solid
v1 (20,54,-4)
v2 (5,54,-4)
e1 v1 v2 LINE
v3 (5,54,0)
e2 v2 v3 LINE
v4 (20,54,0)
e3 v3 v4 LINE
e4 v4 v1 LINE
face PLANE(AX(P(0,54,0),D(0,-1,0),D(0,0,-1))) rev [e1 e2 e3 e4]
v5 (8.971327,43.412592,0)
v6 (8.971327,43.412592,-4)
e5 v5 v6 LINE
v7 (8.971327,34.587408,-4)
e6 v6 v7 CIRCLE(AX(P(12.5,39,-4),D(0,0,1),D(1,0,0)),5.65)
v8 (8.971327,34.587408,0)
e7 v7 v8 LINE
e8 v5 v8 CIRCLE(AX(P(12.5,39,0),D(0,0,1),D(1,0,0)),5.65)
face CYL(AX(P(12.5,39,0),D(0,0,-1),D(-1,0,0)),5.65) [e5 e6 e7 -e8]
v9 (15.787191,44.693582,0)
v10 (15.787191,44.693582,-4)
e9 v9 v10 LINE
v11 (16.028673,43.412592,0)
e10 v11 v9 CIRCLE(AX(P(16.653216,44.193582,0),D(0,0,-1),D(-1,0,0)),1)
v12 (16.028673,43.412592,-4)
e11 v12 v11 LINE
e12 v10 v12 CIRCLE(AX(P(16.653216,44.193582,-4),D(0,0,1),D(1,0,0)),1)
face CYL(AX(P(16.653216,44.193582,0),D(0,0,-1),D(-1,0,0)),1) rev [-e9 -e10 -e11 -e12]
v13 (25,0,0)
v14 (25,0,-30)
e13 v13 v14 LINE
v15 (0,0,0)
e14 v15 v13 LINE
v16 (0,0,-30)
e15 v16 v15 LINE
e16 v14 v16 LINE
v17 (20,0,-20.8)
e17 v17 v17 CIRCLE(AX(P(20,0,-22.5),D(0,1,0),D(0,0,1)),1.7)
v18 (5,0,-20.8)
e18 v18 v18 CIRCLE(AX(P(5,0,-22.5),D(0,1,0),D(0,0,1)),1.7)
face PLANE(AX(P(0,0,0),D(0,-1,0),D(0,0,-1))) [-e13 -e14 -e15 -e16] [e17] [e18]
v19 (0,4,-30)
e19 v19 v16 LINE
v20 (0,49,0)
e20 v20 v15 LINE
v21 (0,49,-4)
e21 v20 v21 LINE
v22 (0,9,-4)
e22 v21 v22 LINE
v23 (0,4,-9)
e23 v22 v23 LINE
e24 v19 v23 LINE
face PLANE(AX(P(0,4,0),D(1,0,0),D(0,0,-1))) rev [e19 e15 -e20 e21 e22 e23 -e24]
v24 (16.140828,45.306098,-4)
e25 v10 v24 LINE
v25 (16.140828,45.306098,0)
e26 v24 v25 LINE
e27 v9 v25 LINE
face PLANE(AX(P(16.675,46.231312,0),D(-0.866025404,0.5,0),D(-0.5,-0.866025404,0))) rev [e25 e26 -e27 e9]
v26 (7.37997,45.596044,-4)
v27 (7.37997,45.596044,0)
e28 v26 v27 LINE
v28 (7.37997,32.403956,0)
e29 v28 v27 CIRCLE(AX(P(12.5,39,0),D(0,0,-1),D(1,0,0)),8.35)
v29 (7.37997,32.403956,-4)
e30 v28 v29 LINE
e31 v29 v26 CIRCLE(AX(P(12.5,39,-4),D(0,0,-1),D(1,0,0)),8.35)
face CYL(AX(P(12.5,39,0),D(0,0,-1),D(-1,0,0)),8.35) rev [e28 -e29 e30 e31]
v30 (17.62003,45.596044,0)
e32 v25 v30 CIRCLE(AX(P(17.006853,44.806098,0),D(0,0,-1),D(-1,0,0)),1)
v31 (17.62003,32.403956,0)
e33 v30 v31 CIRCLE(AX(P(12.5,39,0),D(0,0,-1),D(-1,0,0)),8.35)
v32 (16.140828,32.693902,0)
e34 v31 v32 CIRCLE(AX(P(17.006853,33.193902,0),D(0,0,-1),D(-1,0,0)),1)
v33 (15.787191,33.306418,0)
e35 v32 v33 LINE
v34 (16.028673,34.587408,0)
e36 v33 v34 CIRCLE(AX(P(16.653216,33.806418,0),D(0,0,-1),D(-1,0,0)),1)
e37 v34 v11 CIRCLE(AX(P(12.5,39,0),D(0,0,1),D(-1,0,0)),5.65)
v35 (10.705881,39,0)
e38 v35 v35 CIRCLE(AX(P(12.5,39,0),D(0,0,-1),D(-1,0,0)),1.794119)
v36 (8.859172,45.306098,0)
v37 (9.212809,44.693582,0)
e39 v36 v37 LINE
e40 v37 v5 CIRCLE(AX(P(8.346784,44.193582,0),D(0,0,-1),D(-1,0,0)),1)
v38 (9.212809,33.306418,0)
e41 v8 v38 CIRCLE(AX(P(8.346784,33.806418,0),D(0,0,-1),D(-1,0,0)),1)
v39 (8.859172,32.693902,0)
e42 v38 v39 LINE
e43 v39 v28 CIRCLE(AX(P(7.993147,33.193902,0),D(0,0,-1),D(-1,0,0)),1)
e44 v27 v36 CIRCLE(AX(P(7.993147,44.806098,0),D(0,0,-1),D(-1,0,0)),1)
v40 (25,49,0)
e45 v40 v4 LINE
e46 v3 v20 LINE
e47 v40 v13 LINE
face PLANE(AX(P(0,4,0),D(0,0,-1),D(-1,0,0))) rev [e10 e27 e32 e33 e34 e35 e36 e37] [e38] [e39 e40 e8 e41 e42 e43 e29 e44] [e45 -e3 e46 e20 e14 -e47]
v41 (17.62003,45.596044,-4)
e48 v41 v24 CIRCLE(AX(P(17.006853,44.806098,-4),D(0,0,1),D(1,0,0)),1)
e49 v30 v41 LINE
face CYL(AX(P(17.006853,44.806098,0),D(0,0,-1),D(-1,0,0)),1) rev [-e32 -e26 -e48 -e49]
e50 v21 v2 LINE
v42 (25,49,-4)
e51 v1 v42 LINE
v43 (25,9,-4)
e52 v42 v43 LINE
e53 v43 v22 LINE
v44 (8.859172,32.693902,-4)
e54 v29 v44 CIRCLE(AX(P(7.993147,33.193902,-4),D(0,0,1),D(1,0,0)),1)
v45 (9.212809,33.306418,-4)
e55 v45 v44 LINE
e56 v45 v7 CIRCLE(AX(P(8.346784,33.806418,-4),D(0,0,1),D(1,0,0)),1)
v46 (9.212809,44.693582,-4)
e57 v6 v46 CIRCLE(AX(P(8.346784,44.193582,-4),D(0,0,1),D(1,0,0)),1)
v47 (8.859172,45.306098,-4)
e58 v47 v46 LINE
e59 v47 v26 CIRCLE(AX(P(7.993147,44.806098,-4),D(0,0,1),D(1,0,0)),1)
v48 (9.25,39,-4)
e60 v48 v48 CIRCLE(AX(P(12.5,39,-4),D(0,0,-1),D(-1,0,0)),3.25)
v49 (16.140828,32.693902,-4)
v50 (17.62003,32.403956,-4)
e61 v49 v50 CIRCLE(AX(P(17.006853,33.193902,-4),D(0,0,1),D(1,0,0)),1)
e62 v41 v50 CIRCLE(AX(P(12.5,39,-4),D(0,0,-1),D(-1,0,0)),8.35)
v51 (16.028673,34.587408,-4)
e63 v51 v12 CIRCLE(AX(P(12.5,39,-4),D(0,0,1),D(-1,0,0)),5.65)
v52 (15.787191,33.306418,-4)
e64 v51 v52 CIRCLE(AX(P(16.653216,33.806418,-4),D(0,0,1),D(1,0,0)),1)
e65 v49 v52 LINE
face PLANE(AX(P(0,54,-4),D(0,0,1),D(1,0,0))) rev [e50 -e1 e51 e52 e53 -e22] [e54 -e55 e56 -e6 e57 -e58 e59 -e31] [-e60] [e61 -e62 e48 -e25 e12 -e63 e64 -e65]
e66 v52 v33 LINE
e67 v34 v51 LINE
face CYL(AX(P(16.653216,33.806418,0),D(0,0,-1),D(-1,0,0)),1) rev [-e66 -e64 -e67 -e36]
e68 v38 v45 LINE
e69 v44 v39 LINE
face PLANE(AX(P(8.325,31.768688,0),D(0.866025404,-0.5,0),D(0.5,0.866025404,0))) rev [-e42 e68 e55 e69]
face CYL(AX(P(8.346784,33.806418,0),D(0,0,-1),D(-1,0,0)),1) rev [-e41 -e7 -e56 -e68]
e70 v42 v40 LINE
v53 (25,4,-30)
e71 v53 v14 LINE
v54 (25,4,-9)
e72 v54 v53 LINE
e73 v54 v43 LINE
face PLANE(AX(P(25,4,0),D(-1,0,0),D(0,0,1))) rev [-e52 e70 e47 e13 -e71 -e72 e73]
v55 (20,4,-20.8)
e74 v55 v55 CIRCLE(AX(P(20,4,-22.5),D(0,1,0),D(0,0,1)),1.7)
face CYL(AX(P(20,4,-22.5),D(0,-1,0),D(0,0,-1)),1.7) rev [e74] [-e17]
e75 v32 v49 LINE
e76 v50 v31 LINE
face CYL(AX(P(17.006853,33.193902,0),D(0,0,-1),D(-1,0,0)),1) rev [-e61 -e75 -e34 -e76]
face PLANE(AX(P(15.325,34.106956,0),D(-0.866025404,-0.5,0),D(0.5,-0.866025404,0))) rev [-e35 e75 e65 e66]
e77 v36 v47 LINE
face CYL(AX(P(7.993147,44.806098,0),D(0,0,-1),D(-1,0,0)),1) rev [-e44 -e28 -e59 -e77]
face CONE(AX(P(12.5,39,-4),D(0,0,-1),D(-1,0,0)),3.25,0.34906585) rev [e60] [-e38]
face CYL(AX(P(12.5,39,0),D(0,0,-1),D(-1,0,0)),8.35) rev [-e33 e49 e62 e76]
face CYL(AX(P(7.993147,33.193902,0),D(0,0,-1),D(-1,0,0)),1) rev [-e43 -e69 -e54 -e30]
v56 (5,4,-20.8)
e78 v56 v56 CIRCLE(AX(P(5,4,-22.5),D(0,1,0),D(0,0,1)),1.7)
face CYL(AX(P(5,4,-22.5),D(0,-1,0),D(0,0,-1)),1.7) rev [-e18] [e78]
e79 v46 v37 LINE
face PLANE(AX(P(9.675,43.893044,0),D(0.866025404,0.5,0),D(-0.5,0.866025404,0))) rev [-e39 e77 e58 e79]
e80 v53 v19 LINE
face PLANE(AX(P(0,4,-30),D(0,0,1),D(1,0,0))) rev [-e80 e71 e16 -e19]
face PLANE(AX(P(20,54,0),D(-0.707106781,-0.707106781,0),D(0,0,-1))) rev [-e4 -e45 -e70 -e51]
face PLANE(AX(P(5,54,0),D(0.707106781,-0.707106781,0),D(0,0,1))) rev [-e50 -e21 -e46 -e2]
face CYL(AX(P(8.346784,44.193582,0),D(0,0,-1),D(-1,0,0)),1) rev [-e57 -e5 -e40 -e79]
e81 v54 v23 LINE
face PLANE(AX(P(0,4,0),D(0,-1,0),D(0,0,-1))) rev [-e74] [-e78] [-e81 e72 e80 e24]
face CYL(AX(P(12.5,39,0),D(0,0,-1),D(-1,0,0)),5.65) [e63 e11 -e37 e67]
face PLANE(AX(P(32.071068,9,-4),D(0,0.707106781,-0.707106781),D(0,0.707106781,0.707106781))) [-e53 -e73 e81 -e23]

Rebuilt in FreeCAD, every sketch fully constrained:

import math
import FreeCAD as App
import Part
import Sketcher
from FreeCAD import Vector
Q = App.Units.Quantity


def edges_at(feature, points):
    """Names of the edges that pass closest to the given points."""
    edges = feature.Shape.Edges
    near = lambda p: min(range(len(edges)), key=lambda i: edges[i].distToShape(Part.Vertex(*p))[0])
    return sorted({f"Edge{near(p) + 1}" for p in points})


def faces_at(feature, points):
    """Names of the faces that lie closest to the given points."""
    faces = feature.Shape.Faces
    near = lambda p: min(range(len(faces)), key=lambda i: faces[i].distToShape(Part.Vertex(*p))[0])
    return sorted({f"Face{near(p) + 1}" for p in points})


def add_polygon(sketch, points):
    """Adds a closed chain of lines whose ends are joined by coincident constraints."""
    first, n = sketch.GeometryCount, len(points)
    for a, b in zip(points, points[1:] + points[:1]):
        sketch.addGeometry(Part.LineSegment(App.Vector(*a, 0), App.Vector(*b, 0)), False)
    for i in range(n):
        sketch.addConstraint(Sketcher.Constraint("Coincident", first + i, 2, first + (i + 1) % n, 1))

doc = App.newDocument("Part")
params = doc.addObject("Spreadsheet::Sheet", "Params")
for row, (alias, value) in enumerate([
    ("sketch1_diameter", "3.4 mm"),
    ("sketch1_width", "25 mm"),
    ("sketch1_height", "30 mm"),
    ("pad1_length", "4 mm"),
    ("sketch2_width", "25 mm"),
    ("sketch2_height", "4 mm"),
    ("pad2_length", "50 mm"),
    ("sketch3_diameter", "6.5 mm"),
    ("pad3_length", "4 mm"),
    ("draft_angle", "20 deg"),
    ("sketch4_radius", "8.35 mm"),
    ("sketch4_radius2", "5.65 mm"),
    ("sketch5_width", "5 mm"),
    ("pad4_length", "25 mm"),
    ("chamfer_size", "5 mm"),
    ("fillet_radius", "1 mm"),
], start=1):
    params.set(f"A{row}", alias)
    params.set(f"B{row}", "=" + value)
    params.setAlias(f"B{row}", alias)

body = doc.addObject("PartDesign::Body", "Body")

sketch1 = body.newObject("Sketcher::SketchObject", "Sketch")
sketch1.AttachmentSupport = (doc.getObject("XZ_Plane"), [""])
sketch1.MapMode = "FlatFace"
add_polygon(sketch1, [(0, -30), (0, 0), (25, 0), (25, -30)])
sketch1.addGeometry(Part.Circle(Vector(5, -22.5, 0), Vector(0, 0, 1), 1.7), False)
sketch1.addGeometry(Part.Circle(Vector(20, -22.5, 0), Vector(0, 0, 1), 1.7), False)
sketch1.addConstraint(Sketcher.Constraint("Vertical", 0))
sketch1.addConstraint(Sketcher.Constraint("Horizontal", 1))
sketch1.addConstraint(Sketcher.Constraint("Vertical", 2))
sketch1.addConstraint(Sketcher.Constraint("Horizontal", 3))
sketch1.addConstraint(Sketcher.Constraint("Coincident", 0, 2, -1, 1))
sketch1.addConstraint(Sketcher.Constraint("Equal", 4, 5))
sketch1.addConstraint(Sketcher.Constraint("Horizontal", 4, 3, 5, 3))
sketch1.addConstraint(Sketcher.Constraint("Diameter", 4, 3.4))
sketch1.addConstraint(Sketcher.Constraint("DistanceX", 1, 1, 1, 2, 25.0))
sketch1.addConstraint(Sketcher.Constraint("DistanceY", 0, 1, 0, 2, 30.0))
sketch1.addConstraint(Sketcher.Constraint("DistanceX", -1, 1, 4, 3, 5.0))
sketch1.addConstraint(Sketcher.Constraint("DistanceX", -1, 1, 5, 3, 20.0))
sketch1.addConstraint(Sketcher.Constraint("DistanceY", 4, 3, -1, 1, 22.5))
sketch1.setExpression("Constraints[11]", "Params.sketch1_diameter")
sketch1.setExpression("Constraints[12]", "Params.sketch1_width")
sketch1.setExpression("Constraints[13]", "Params.sketch1_height")
pad1 = body.newObject("PartDesign::Pad", "Pad")
pad1.Profile = sketch1
pad1.setExpression("Length", "Params.pad1_length")
pad1.Reversed = True

sketch2 = body.newObject("Sketcher::SketchObject", "Sketch001")
sketch2.AttachmentSupport = (doc.getObject("XZ_Plane"), [""])
sketch2.MapMode = "FlatFace"
sketch2.AttachmentOffset = App.Placement(Vector(0, 0, -4), App.Rotation())
add_polygon(sketch2, [(0, -4), (0, 0), (25, 0), (25, -4)])
sketch2.addConstraint(Sketcher.Constraint("Vertical", 0))
sketch2.addConstraint(Sketcher.Constraint("Horizontal", 1))
sketch2.addConstraint(Sketcher.Constraint("Vertical", 2))
sketch2.addConstraint(Sketcher.Constraint("Horizontal", 3))
sketch2.addConstraint(Sketcher.Constraint("Coincident", 0, 2, -1, 1))
sketch2.addConstraint(Sketcher.Constraint("DistanceX", 1, 1, 1, 2, 25.0))
sketch2.addConstraint(Sketcher.Constraint("DistanceY", 0, 1, 0, 2, 4.0))
sketch2.setExpression("Constraints[9]", "Params.sketch2_width")
sketch2.setExpression("Constraints[10]", "Params.sketch2_height")
pad2 = body.newObject("PartDesign::Pad", "Pad001")
pad2.Profile = sketch2
pad2.setExpression("Length", "Params.pad2_length")
pad2.Reversed = True
body2 = doc.addObject("PartDesign::Body", "Body001")

sketch3 = body2.newObject("Sketcher::SketchObject", "Sketch002")
sketch3.AttachmentSupport = (doc.getObject("XY_Plane001"), [""])
sketch3.MapMode = "FlatFace"
sketch3.AttachmentOffset = App.Placement(Vector(0, 0, -4), App.Rotation())
sketch3.addGeometry(Part.Circle(Vector(12.5, 39, 0), Vector(0, 0, 1), 3.2), False)
sketch3.addConstraint(Sketcher.Constraint("Diameter", 0, 6.5))
sketch3.addConstraint(Sketcher.Constraint("DistanceY", -1, 1, 0, 3, 39.0))
sketch3.addConstraint(Sketcher.Constraint("DistanceX", -1, 1, 0, 3, 12.5))
sketch3.setExpression("Constraints[0]", "Params.sketch3_diameter")
pad3 = body2.newObject("PartDesign::Pad", "Pad002")
pad3.Profile = sketch3
pad3.setExpression("Length", "Params.pad3_length")
doc.recompute()

datumplane = body2.newObject("PartDesign::Plane", "DatumPlane")
datumplane.AttachmentSupport = (doc.getObject("XY_Plane001"), [""])
datumplane.MapMode = "FlatFace"
datumplane.AttachmentOffset = App.Placement(Vector(0, 0, -4), App.Rotation())
draft = body2.newObject("PartDesign::Draft", "Draft")
draft.Base = (pad3, faces_at(pad3, [(15.75, 39, -2)]))
draft.NeutralPlane = (datumplane, [""])
draft.setExpression("Angle", "Params.draft_angle")
draft.Reversed = False
doc.recompute()

boolean = body.newObject("PartDesign::Boolean", "Boolean")
boolean.Type = "Cut"
boolean.addObjects([body2])

sketch4 = body.newObject("Sketcher::SketchObject", "Sketch003")
sketch4.AttachmentSupport = (doc.getObject("XY_Plane"), [""])
sketch4.MapMode = "FlatFace"
sketch4.AttachmentOffset = App.Placement(Vector(0, 0, -4), App.Rotation())
sketch4.addGeometry(Part.LineSegment(Vector(15.3, 43.9, 0), Vector(16.7, 46.2, 0)), False)
sketch4.addGeometry(Part.ArcOfCircle(Part.Circle(Vector(12.5, 39, 0), Vector(0, 0, 1), 8.4), math.radians(-60), math.radians(60)), False)
sketch4.addGeometry(Part.LineSegment(Vector(16.7, 31.8, 0), Vector(15.3, 34.1, 0)), False)
sketch4.addGeometry(Part.ArcOfCircle(Part.Circle(Vector(12.5, 39, 0), Vector(0, 0, 1), 5.6), math.radians(-60), math.radians(60)), False)
sketch4.addGeometry(Part.LineSegment(Vector(8.3, 46.2, 0), Vector(9.7, 43.9, 0)), False)
sketch4.addGeometry(Part.ArcOfCircle(Part.Circle(Vector(12.5, 39, 0), Vector(0, 0, 1), 5.6), math.radians(120), math.radians(240)), False)
sketch4.addGeometry(Part.LineSegment(Vector(9.7, 34.1, 0), Vector(8.3, 31.8, 0)), False)
sketch4.addGeometry(Part.ArcOfCircle(Part.Circle(Vector(12.5, 39, 0), Vector(0, 0, 1), 8.4), math.radians(120), math.radians(240)), False)
sketch4.addConstraint(Sketcher.Constraint("Coincident", 0, 2, 1, 2))
sketch4.addConstraint(Sketcher.Constraint("Coincident", 1, 1, 2, 1))
sketch4.addConstraint(Sketcher.Constraint("Coincident", 2, 2, 3, 1))
sketch4.addConstraint(Sketcher.Constraint("Coincident", 3, 2, 0, 1))
sketch4.addConstraint(Sketcher.Constraint("Coincident", 4, 2, 5, 1))
sketch4.addConstraint(Sketcher.Constraint("Coincident", 5, 2, 6, 1))
sketch4.addConstraint(Sketcher.Constraint("Coincident", 6, 2, 7, 2))
sketch4.addConstraint(Sketcher.Constraint("Coincident", 7, 1, 4, 1))
sketch4.addConstraint(Sketcher.Constraint("Coincident", 3, 3, 1, 3))
sketch4.addConstraint(Sketcher.Constraint("Coincident", 5, 3, 1, 3))
sketch4.addConstraint(Sketcher.Constraint("Coincident", 7, 3, 1, 3))
sketch4.addConstraint(Sketcher.Constraint("Equal", 3, 5))
sketch4.addConstraint(Sketcher.Constraint("Equal", 1, 7))
sketch4.addConstraint(Sketcher.Constraint("Parallel", 2, 4))
sketch4.addConstraint(Sketcher.Constraint("Parallel", 0, 6))
sketch4.addConstraint(Sketcher.Constraint("Horizontal", 3, 2, 4, 2))
sketch4.addConstraint(Sketcher.Constraint("Horizontal", 2, 2, 5, 2))
sketch4.addConstraint(Sketcher.Constraint("Horizontal", 1, 1, 6, 2))
sketch4.addConstraint(Sketcher.Constraint("Vertical", 0, 2, 1, 1))
sketch4.addConstraint(Sketcher.Constraint("Angle", 0, Q("60 deg")))
sketch4.addConstraint(Sketcher.Constraint("Radius", 1, 8.35))
sketch4.addConstraint(Sketcher.Constraint("Radius", 3, 5.65))
sketch4.addConstraint(Sketcher.Constraint("DistanceY", -1, 1, 1, 3, 39.0))
sketch4.addConstraint(Sketcher.Constraint("DistanceX", 6, 2, 2, 2, 7.0))
sketch4.addConstraint(Sketcher.Constraint("DistanceX", -1, 1, 1, 3, 12.5))
sketch4.setExpression("Constraints[20]", "Params.sketch4_radius")
sketch4.setExpression("Constraints[21]", "Params.sketch4_radius2")
pocket1 = body.newObject("PartDesign::Pocket", "Pocket")
pocket1.Profile = sketch4
pocket1.Type = "ThroughAll"
pocket1.Reversed = True

sketch5 = body.newObject("Sketcher::SketchObject", "Sketch004")
sketch5.AttachmentSupport = (doc.getObject("YZ_Plane"), [""])
sketch5.MapMode = "FlatFace"
add_polygon(sketch5, [(4, -9), (4, -4), (9, -4)])
sketch5.addConstraint(Sketcher.Constraint("Vertical", 0))
sketch5.addConstraint(Sketcher.Constraint("Horizontal", 1))
sketch5.addConstraint(Sketcher.Constraint("Equal", 1, 0))
sketch5.addConstraint(Sketcher.Constraint("DistanceX", 1, 1, 1, 2, 5.0))
sketch5.addConstraint(Sketcher.Constraint("DistanceX", -1, 1, 0, 2, 4.0))
sketch5.addConstraint(Sketcher.Constraint("DistanceY", 0, 2, -1, 1, 4.0))
sketch5.setExpression("Constraints[6]", "Params.sketch5_width")
pad4 = body.newObject("PartDesign::Pad", "Pad003")
pad4.Profile = sketch5
pad4.setExpression("Length", "Params.pad4_length")
doc.recompute()

chamfer = body.newObject("PartDesign::Chamfer", "Chamfer")
chamfer.Base = (pad4, edges_at(pad4, [(0, 54, -2), (25, 54, -2)]))
chamfer.setExpression("Size", "Params.chamfer_size")
doc.recompute()

fillet = body.newObject("PartDesign::Fillet", "Fillet")
fillet.Base = (chamfer, edges_at(chamfer, [
    (9.675, 34.107, -2),
    (9.675, 43.893, -2),
    (8.325, 46.231, -2),
    (8.325, 31.769, -2),
    (16.675, 31.769, -2),
    (16.675, 46.231, -2),
    (15.325, 43.893, -2),
    (15.325, 34.107, -2),
]))
fillet.setExpression("Radius", "Params.fillet_radius")

doc.recompute()
